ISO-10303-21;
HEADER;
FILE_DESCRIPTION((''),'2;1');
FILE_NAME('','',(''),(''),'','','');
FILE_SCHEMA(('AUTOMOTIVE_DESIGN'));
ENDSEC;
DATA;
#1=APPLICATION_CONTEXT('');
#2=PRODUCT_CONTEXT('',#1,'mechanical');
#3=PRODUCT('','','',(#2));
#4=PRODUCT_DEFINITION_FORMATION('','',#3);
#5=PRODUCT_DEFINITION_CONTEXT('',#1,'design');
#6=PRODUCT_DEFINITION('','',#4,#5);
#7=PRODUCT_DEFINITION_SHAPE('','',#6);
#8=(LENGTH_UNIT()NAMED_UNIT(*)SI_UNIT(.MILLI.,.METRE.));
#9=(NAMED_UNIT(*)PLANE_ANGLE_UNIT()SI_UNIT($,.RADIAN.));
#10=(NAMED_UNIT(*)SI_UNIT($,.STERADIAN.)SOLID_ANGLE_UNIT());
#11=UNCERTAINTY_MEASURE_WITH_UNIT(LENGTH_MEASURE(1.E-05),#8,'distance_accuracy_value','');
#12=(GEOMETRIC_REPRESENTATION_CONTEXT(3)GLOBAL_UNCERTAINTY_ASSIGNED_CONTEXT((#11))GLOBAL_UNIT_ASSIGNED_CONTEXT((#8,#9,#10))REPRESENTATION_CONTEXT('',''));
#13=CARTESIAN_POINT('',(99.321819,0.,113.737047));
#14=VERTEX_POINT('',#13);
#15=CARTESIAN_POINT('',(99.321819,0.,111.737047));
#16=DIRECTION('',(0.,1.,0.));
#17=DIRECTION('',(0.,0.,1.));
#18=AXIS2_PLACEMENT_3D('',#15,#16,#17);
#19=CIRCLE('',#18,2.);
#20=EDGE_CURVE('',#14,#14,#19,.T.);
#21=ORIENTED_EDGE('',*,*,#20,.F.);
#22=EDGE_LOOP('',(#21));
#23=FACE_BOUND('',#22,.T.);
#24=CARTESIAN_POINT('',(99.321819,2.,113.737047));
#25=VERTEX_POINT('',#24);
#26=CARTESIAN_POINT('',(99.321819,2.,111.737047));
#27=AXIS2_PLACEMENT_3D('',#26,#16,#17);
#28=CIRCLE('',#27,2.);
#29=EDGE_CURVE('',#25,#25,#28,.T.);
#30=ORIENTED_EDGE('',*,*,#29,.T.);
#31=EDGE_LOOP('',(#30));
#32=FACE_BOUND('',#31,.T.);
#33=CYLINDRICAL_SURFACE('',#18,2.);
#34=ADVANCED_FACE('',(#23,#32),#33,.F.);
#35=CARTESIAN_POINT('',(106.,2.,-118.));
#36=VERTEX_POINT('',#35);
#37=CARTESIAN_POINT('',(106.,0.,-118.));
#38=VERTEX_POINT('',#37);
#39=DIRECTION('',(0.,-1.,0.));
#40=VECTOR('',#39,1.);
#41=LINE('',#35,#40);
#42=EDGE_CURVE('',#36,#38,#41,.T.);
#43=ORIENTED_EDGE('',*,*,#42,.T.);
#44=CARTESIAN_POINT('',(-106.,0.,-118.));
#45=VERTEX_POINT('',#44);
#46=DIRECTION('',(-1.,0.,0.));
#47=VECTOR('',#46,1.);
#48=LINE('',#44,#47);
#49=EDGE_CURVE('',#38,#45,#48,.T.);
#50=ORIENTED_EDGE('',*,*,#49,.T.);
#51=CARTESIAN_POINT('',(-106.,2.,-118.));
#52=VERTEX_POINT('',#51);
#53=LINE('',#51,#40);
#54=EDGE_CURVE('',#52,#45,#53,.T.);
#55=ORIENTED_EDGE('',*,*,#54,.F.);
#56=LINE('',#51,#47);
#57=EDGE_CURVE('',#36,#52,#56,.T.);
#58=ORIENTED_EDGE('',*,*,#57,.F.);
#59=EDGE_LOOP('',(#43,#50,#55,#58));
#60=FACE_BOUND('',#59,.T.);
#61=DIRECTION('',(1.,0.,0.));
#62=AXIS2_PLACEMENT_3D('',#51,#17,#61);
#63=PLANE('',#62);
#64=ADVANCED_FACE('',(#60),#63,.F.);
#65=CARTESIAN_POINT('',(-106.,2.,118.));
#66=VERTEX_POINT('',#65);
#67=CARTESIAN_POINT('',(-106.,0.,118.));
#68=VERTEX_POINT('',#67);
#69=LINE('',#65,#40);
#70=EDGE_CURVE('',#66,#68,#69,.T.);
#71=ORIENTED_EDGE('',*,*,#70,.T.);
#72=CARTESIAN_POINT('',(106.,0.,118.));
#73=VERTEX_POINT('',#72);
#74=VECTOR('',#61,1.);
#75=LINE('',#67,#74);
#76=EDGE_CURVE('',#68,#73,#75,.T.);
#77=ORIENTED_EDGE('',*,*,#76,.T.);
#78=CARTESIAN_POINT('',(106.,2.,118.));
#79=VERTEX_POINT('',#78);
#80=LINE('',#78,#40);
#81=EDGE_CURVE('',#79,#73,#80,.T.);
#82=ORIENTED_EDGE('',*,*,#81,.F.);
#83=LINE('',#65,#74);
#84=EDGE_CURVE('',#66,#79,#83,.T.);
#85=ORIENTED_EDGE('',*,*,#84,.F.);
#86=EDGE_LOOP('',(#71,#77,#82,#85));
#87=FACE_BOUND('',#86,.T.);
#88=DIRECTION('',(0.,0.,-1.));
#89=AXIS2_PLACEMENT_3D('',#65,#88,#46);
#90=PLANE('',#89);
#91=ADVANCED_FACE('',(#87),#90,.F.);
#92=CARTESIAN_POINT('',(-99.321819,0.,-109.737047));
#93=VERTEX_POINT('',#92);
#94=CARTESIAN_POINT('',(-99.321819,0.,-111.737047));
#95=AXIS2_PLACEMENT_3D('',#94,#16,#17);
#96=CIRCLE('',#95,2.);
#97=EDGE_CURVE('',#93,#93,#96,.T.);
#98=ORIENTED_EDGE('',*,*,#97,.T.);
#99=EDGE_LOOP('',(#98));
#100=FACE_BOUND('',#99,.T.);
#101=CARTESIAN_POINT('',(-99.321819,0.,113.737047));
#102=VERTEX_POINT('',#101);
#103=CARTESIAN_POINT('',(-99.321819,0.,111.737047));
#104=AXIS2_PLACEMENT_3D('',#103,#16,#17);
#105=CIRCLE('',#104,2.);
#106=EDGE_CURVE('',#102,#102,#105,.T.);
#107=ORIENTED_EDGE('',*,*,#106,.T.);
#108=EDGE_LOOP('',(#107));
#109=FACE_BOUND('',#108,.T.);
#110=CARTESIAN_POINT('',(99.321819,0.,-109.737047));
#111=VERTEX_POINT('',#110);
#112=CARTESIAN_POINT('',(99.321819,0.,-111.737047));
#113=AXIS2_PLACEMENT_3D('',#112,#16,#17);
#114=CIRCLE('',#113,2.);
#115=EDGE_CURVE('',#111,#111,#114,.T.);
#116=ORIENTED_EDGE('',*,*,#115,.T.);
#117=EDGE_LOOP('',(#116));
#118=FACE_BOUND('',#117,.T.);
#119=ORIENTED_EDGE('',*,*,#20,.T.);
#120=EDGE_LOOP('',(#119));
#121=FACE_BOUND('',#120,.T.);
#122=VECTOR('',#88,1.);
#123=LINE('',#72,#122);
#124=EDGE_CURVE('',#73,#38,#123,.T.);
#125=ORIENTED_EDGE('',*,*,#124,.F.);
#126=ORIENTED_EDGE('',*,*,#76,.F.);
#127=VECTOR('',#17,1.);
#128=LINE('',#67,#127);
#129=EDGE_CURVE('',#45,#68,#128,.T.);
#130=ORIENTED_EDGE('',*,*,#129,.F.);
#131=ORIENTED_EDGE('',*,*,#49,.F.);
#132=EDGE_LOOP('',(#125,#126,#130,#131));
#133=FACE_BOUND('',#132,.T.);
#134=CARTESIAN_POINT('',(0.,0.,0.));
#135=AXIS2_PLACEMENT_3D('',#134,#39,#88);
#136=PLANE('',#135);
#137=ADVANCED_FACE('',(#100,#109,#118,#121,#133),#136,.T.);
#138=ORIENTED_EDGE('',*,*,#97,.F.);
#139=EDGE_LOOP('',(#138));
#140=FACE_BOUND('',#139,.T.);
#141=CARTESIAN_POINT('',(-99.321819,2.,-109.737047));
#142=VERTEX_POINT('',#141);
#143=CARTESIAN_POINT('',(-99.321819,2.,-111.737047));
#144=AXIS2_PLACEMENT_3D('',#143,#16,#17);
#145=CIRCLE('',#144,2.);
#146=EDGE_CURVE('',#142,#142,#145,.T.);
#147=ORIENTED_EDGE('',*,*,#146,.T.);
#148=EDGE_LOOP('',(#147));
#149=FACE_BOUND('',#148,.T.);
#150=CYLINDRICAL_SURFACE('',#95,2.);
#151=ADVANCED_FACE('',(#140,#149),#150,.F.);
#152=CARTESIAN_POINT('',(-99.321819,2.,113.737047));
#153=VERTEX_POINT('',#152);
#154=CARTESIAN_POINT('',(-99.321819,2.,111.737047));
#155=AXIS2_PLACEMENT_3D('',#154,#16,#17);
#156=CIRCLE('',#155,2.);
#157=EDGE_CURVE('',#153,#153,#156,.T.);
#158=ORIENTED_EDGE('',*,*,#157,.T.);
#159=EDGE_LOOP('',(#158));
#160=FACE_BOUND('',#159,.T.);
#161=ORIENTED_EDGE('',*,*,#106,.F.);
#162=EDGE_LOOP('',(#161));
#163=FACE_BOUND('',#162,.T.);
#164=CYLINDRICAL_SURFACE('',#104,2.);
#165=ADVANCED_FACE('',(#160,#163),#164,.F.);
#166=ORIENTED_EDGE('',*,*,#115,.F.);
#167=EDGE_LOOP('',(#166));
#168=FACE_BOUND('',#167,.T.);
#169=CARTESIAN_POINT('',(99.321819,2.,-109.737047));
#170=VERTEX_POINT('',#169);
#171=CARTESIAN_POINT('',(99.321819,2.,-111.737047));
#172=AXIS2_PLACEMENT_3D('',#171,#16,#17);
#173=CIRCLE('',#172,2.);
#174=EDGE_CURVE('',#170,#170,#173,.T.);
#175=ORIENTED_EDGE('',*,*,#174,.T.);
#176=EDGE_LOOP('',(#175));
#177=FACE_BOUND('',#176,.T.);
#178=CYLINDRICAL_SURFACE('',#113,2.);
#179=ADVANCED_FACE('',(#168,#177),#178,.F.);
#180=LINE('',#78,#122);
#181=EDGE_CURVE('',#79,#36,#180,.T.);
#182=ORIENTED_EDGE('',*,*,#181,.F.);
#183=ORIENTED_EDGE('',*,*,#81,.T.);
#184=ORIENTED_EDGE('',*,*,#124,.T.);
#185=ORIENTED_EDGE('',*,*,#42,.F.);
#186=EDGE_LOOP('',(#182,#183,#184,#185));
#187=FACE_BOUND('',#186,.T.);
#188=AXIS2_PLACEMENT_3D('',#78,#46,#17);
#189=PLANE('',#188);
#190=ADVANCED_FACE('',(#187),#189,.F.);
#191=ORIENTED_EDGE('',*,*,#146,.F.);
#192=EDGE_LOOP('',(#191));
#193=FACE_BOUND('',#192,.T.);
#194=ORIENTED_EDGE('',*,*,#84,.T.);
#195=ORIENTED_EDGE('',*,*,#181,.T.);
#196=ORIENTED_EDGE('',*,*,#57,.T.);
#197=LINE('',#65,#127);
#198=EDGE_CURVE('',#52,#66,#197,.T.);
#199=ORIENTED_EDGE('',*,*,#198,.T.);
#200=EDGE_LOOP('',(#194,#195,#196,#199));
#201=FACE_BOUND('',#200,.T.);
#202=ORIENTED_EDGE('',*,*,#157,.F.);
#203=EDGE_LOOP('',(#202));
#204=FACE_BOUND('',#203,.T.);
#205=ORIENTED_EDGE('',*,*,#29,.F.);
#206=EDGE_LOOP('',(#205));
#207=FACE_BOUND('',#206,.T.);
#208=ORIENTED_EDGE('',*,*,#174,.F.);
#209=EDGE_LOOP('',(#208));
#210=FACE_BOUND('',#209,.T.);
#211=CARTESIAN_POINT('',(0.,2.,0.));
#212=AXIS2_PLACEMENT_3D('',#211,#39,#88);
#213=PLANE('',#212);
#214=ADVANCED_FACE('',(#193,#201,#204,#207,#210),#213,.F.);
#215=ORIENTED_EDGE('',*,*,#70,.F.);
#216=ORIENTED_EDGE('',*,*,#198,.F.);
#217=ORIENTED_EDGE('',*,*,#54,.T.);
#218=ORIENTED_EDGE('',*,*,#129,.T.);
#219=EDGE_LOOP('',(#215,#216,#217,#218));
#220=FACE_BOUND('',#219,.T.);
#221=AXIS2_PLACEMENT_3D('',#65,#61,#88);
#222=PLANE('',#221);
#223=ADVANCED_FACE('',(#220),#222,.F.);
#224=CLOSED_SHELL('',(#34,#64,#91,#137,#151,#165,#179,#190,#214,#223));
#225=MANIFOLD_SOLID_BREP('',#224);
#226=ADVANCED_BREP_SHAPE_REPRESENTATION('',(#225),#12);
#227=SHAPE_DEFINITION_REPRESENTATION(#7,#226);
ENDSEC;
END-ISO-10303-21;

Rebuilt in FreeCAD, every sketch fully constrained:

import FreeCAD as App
import Part
import Sketcher

V = App.Vector

doc = App.newDocument("Part")
body = doc.addObject("PartDesign::Body", "Body")

# Sketch on XZ plane
sketch1 = body.newObject("Sketcher::SketchObject", "Sketch")
sketch1.AttachmentSupport = (doc.getObject("XZ_Plane"), [""])
sketch1.MapMode = "FlatFace"
sketch1.addGeometry([
    Part.LineSegment(V(-106, -118, 0), V(-106, 118, 0)),
    Part.LineSegment(V(-106, 118, 0), V(106, 118, 0)),
    Part.LineSegment(V(106, 118, 0), V(106, -118, 0)),
    Part.LineSegment(V(106, -118, 0), V(-106, -118, 0)),
], False)
sketch1.addConstraint([
    Sketcher.Constraint("Coincident", 0, 2, 1, 1),
    Sketcher.Constraint("Coincident", 1, 2, 2, 1),
    Sketcher.Constraint("Coincident", 2, 2, 3, 1),
    Sketcher.Constraint("Coincident", 3, 2, 0, 1),
    Sketcher.Constraint("Vertical", 0),
    Sketcher.Constraint("Horizontal", 1),
    Sketcher.Constraint("Vertical", 2),
    Sketcher.Constraint("Horizontal", 3),
    Sketcher.Constraint("Symmetric", 0, 2, 2, 2, -1, 1),
    Sketcher.Constraint("DistanceX", 1, 1, 1, 2, 212.0),
    Sketcher.Constraint("DistanceY", 0, 1, 0, 2, 236.0),
])
pad1 = body.newObject("PartDesign::Pad", "Pad")
pad1.Profile = sketch1
pad1.Length = 2
pad1.Reversed = True

# Sketch on XZ plane
sketch2 = body.newObject("Sketcher::SketchObject", "Sketch001")
sketch2.AttachmentSupport = (doc.getObject("XZ_Plane"), [""])
sketch2.MapMode = "FlatFace"
sketch2.AttachmentOffset = App.Placement(V(0, 0, -2), App.Rotation())
sketch2.addGeometry([
    Part.Circle(V(99.3, -111.7, 0), V(0, 0, 1), 2),
    Part.Circle(V(-99.3, -111.7, 0), V(0, 0, 1), 2),
    Part.Circle(V(-99.3, 111.7, 0), V(0, 0, 1), 2),
    Part.Circle(V(99.3, 111.7, 0), V(0, 0, 1), 2),
], False)
sketch2.addConstraint([
    Sketcher.Constraint("Equal", 0, 1),
    Sketcher.Constraint("Equal", 1, 2),
    Sketcher.Constraint("Equal", 2, 3),
    Sketcher.Constraint("Symmetric", 0, 3, 2, 3, -1, 1),
    Sketcher.Constraint("Symmetric", 1, 3, 3, 3, -1, 1),
    Sketcher.Constraint("Symmetric", 0, 3, 1, 3, -2),
    Sketcher.Constraint("Diameter", 0, 4.0),
    Sketcher.Constraint("DistanceX", -1, 1, 0, 3, 99.321819),
    Sketcher.Constraint("DistanceY", 0, 3, -1, 1, 111.737047),
])
pocket1 = body.newObject("PartDesign::Pocket", "Pocket")
pocket1.Profile = sketch2
pocket1.Type = "ThroughAll"
pocket1.Reversed = True

doc.recompute()
